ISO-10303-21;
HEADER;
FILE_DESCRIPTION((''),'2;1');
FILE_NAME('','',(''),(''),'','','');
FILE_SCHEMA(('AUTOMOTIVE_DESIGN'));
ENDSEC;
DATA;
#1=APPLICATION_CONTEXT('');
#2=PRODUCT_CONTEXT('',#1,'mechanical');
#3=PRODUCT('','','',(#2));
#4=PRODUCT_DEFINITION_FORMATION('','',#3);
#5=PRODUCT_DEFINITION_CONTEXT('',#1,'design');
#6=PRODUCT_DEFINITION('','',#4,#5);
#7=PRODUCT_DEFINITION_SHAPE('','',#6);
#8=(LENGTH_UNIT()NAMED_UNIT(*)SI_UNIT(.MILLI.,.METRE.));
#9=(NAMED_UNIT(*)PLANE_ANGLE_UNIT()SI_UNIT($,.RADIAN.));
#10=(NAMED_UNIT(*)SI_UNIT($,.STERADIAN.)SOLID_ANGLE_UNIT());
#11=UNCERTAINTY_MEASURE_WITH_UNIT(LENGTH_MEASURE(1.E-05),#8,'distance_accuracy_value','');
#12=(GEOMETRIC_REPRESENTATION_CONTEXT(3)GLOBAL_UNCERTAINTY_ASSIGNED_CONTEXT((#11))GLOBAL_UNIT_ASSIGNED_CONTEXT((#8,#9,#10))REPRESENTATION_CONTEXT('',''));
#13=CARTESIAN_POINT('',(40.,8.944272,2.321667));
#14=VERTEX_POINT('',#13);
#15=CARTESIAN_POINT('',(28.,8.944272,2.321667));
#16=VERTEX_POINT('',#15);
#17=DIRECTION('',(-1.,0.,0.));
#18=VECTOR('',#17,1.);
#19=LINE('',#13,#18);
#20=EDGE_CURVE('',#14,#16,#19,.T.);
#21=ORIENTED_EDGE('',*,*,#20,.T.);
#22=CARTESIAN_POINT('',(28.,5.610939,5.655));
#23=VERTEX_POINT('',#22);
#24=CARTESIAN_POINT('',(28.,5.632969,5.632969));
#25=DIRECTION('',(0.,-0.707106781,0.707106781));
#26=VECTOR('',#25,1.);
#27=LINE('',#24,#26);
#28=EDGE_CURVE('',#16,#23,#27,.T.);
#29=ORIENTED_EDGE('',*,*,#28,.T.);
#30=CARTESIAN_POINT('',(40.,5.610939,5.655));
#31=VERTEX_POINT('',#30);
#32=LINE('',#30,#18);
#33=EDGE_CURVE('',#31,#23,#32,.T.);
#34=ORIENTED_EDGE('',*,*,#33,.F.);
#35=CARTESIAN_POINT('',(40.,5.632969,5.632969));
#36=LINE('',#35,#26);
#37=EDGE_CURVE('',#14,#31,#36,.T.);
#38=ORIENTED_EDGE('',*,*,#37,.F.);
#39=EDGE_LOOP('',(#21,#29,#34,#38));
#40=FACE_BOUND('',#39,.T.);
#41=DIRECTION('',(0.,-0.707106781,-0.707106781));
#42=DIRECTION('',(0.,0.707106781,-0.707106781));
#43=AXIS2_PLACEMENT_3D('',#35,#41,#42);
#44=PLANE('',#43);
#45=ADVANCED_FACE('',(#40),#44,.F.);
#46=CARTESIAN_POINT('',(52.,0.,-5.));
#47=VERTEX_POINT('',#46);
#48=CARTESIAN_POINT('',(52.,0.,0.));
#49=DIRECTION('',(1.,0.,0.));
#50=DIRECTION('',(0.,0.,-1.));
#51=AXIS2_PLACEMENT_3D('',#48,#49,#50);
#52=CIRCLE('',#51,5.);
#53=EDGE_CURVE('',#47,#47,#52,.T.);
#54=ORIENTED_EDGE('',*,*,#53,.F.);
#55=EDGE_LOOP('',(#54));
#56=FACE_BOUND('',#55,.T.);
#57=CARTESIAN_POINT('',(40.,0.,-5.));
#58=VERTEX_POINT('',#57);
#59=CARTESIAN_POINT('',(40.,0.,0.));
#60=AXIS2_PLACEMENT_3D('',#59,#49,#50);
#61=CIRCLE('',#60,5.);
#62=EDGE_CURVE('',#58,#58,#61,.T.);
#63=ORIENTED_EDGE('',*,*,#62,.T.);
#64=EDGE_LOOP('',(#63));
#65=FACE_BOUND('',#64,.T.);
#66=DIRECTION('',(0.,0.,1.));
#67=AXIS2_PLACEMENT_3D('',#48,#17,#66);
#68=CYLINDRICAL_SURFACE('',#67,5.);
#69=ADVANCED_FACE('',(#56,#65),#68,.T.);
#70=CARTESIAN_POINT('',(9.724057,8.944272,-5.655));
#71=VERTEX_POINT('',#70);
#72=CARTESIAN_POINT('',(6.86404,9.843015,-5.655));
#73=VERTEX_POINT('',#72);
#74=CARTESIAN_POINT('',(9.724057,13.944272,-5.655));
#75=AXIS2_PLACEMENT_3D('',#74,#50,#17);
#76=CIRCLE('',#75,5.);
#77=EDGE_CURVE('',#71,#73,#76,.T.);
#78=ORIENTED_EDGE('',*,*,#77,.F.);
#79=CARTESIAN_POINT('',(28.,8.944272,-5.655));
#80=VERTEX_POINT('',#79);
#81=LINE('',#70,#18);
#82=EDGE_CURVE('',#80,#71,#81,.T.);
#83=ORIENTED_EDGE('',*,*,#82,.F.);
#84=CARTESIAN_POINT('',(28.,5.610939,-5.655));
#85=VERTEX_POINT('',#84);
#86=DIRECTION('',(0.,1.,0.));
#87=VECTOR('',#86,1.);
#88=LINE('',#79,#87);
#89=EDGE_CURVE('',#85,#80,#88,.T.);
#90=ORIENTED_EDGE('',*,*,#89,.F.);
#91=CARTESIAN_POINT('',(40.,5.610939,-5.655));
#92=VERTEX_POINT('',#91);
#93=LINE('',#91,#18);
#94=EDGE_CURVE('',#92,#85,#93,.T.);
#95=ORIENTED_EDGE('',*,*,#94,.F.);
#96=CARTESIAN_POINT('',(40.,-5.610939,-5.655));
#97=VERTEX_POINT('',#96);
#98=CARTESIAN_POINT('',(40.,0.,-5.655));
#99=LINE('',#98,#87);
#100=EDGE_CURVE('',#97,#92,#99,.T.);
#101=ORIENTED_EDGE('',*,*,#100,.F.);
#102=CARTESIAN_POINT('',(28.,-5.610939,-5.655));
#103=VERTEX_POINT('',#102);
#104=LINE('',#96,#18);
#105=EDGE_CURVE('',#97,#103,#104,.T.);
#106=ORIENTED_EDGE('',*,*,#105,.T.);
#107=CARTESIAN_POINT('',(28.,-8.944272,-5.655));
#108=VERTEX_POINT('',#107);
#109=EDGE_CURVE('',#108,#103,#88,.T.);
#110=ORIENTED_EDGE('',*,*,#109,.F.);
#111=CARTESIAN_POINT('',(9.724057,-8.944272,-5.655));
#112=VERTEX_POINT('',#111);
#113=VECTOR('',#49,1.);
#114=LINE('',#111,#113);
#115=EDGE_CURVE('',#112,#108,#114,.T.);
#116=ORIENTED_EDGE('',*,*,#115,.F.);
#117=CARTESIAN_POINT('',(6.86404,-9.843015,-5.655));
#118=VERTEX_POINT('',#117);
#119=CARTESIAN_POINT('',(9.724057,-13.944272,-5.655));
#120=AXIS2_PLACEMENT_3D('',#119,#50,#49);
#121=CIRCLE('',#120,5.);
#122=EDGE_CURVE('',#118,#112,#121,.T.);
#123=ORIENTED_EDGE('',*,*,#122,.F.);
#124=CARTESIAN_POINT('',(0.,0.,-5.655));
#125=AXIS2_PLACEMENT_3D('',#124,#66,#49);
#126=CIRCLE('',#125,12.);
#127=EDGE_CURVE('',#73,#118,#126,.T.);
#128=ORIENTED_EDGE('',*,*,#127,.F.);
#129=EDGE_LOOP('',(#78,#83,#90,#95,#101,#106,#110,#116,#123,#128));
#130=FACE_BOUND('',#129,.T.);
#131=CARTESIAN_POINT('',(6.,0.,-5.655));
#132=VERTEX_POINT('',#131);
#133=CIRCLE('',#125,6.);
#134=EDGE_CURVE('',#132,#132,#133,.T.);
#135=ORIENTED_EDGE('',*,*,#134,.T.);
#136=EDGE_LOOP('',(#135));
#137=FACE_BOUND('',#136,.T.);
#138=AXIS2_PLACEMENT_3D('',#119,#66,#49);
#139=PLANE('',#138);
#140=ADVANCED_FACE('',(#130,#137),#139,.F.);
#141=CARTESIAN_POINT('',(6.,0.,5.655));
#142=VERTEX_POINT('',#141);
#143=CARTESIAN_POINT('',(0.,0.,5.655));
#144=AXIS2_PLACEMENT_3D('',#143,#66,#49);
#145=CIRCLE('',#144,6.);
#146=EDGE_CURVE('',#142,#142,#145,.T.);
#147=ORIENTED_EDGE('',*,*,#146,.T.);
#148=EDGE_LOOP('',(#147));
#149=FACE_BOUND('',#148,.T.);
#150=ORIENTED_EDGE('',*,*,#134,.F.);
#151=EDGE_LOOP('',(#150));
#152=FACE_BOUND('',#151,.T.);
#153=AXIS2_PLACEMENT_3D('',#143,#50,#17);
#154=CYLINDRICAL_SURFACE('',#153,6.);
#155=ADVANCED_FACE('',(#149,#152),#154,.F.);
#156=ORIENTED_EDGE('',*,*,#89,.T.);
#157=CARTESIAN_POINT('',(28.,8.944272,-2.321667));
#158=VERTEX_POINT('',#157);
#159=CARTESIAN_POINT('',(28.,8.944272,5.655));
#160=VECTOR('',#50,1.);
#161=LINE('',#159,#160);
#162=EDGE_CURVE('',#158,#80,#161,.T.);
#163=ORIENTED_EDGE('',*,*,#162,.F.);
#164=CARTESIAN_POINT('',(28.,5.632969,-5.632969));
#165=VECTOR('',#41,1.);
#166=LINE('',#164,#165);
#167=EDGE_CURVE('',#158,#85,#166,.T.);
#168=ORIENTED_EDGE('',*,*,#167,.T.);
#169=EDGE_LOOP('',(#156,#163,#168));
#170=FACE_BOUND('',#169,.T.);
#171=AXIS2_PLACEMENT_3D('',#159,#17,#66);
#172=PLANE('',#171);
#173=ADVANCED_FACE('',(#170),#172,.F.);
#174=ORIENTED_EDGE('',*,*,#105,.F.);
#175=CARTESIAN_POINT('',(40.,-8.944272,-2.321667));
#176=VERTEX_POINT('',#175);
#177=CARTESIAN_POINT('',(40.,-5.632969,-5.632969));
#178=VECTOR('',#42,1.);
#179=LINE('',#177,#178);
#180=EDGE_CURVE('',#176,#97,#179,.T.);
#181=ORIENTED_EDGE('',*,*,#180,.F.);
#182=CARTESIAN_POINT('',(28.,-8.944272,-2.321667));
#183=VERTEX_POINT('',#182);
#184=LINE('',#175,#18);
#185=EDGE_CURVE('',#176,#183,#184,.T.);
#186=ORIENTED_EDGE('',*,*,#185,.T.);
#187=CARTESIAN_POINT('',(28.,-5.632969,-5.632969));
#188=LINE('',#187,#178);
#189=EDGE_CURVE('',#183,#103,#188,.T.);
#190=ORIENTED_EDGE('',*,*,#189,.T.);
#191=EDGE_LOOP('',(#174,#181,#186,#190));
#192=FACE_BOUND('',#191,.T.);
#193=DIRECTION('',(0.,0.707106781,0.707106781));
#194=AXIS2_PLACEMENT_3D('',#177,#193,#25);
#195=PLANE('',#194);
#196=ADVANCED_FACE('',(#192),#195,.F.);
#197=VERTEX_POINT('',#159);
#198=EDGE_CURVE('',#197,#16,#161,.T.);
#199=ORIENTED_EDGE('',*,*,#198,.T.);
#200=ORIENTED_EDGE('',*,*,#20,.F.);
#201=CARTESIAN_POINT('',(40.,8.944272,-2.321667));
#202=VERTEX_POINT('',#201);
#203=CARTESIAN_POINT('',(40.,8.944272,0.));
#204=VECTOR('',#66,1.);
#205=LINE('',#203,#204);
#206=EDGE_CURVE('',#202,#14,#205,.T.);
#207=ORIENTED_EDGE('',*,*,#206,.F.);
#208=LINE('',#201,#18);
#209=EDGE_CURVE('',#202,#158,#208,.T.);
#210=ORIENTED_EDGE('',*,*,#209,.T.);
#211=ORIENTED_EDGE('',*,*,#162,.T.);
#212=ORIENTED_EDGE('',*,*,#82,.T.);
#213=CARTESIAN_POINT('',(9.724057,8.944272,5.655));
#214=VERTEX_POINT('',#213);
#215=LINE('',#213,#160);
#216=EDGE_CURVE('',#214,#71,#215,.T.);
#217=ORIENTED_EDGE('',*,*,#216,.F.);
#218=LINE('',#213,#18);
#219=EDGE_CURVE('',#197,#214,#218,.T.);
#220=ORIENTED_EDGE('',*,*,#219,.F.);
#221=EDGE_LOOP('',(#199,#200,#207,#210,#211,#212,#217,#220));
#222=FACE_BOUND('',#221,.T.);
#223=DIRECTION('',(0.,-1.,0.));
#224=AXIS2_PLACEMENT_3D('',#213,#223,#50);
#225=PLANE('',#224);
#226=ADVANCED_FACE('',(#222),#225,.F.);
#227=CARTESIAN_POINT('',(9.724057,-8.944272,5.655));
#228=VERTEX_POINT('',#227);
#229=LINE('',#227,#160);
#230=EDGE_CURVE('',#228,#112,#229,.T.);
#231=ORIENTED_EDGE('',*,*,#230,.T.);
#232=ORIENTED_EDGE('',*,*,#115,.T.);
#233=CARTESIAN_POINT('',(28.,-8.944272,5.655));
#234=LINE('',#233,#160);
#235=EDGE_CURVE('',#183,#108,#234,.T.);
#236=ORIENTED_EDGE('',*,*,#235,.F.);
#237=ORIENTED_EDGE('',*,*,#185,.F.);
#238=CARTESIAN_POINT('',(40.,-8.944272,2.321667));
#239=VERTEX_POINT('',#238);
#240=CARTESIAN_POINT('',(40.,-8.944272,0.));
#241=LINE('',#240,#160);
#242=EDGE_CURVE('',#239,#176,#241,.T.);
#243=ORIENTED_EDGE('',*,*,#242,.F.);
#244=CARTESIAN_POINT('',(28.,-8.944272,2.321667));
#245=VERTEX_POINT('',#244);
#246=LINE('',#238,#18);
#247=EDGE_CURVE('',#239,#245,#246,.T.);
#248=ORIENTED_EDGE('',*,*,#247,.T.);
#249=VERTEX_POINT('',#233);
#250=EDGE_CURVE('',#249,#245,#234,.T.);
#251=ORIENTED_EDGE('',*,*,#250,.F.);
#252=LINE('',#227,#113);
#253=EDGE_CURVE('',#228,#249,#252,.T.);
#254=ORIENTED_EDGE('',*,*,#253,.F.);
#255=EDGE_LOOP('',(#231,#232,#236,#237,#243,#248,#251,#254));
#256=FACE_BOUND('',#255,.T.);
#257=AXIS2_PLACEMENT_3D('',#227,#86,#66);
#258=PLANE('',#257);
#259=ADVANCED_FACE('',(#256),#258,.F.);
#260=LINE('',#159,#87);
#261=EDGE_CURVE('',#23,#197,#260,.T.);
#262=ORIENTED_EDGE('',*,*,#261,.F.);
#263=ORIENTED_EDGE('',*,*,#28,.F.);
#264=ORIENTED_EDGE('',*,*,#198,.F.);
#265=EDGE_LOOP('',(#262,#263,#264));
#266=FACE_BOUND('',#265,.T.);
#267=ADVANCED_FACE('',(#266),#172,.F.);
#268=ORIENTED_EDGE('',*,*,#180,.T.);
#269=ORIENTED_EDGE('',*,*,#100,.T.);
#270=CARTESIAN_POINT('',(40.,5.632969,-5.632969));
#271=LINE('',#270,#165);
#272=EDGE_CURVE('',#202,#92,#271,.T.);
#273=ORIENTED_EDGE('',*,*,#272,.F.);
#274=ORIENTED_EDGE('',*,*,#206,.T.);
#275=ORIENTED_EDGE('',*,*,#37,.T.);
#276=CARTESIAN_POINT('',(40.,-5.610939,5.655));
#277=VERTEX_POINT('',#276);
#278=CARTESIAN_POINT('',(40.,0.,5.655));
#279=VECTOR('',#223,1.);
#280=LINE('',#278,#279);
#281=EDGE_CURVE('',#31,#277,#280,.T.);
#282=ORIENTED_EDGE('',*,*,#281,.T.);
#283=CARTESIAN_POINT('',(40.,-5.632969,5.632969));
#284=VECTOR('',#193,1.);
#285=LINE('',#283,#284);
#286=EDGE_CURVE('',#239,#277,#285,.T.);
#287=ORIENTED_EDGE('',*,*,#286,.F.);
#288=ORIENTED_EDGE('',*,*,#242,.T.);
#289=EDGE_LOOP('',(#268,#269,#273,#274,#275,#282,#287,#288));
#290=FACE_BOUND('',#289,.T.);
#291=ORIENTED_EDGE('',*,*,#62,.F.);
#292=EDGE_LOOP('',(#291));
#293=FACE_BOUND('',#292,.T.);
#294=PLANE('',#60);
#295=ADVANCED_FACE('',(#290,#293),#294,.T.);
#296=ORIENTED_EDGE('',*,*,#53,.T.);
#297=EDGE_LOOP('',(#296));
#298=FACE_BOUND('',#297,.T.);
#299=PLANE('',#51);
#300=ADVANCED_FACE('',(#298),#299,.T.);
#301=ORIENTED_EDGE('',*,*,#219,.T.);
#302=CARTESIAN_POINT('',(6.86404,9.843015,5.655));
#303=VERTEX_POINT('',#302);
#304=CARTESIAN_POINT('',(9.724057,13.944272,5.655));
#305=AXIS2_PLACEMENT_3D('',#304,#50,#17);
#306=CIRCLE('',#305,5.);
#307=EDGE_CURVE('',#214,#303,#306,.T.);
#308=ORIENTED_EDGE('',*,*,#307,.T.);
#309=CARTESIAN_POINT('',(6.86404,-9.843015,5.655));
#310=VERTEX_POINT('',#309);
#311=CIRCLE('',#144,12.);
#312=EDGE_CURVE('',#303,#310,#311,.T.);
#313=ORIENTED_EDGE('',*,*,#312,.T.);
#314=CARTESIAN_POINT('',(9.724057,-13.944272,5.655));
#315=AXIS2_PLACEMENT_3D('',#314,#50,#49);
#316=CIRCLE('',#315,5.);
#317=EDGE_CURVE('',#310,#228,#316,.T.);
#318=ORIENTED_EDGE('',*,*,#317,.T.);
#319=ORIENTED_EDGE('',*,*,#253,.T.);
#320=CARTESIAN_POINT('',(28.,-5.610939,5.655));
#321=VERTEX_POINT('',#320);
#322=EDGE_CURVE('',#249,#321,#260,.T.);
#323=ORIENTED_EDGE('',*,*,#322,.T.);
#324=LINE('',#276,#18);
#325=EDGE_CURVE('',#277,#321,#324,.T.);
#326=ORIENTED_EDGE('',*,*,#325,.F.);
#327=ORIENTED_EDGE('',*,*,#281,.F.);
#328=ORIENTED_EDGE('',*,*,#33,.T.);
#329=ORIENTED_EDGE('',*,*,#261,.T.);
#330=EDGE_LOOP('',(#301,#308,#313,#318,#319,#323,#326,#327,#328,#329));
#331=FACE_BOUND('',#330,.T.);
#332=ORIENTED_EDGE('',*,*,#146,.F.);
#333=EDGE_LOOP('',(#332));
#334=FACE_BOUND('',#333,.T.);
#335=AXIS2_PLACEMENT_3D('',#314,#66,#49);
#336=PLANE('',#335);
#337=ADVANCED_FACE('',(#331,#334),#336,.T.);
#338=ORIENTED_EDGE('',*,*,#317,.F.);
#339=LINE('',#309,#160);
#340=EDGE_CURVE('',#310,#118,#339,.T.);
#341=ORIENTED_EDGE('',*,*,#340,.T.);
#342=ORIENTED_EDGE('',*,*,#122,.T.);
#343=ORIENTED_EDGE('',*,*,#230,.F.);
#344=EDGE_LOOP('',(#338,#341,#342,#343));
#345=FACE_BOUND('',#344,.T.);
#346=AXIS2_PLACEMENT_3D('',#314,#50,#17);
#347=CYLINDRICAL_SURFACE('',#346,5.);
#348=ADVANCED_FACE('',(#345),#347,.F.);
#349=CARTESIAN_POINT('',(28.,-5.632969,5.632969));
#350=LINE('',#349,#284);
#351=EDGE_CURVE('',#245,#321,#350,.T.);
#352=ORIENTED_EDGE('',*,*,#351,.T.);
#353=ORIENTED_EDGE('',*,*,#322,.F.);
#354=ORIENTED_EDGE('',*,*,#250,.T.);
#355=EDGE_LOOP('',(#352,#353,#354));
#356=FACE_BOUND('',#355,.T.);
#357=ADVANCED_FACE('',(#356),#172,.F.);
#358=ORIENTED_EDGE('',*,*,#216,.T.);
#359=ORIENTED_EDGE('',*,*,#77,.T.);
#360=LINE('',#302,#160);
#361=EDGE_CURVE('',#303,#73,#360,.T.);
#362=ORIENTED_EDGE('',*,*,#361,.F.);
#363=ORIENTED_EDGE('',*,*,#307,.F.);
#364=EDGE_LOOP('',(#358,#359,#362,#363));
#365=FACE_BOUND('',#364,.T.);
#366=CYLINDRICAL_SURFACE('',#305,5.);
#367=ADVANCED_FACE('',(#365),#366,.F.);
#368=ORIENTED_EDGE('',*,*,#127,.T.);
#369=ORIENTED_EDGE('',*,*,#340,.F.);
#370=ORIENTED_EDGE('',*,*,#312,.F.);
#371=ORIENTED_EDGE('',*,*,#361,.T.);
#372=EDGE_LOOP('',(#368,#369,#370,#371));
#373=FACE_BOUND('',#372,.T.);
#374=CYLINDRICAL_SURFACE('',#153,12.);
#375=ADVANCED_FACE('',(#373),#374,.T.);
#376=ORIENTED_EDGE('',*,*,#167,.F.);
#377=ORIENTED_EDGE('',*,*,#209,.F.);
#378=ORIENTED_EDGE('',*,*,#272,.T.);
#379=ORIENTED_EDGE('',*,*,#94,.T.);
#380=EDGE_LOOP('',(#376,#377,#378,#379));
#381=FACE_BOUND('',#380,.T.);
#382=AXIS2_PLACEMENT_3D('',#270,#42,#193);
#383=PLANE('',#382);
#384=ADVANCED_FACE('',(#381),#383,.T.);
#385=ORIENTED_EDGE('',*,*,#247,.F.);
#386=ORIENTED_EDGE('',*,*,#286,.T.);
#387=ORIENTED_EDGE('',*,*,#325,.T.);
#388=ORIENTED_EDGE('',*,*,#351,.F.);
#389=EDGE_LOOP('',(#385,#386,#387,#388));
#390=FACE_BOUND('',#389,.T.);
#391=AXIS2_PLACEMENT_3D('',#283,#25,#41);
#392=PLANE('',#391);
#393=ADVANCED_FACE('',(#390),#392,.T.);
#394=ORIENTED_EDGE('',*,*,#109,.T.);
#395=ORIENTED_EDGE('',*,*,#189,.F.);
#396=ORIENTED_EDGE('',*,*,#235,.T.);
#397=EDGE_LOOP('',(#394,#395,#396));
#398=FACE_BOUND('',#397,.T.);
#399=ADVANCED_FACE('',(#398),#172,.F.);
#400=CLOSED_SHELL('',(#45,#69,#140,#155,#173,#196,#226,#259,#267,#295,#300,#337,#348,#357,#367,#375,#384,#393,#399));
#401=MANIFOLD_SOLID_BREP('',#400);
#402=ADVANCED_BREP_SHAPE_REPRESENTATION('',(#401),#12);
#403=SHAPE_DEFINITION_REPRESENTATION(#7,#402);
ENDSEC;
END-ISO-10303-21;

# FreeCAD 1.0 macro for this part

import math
import FreeCAD as App
import Part
import Sketcher
from FreeCAD import Vector
Q = App.Units.Quantity

doc = App.newDocument("Part")
params = doc.addObject("Spreadsheet::Sheet", "Params")
for row, (alias, value) in enumerate([
    ("sketch1_diameter", "12 mm"),
    ("sketch1_radius", "5 mm"),
    ("sketch1_radius2", "12 mm"),
    ("pad1_length", "11.31 mm"),
    ("pad2_length", "12 mm"),
    ("sketch3_diameter", "10 mm"),
    ("pad3_length", "12 mm"),
], start=1):
    params.set(f"A{row}", alias)
    params.set(f"B{row}", "=" + value)
    params.setAlias(f"B{row}", alias)

body = doc.addObject("PartDesign::Body", "Body")

# Sketch on XY plane
sketch1 = doc.addObject("Sketcher::SketchObject", "Sketch")
body.addObject(sketch1)
sketch1.AttachmentSupport = (doc.XY_Plane, [""])
sketch1.MapMode = "FlatFace"
sketch1.addGeometry([
    Part.LineSegment(Vector(28, 8.944272, 0), Vector(9.724057, 8.944272, 0)),  # 0
    Part.ArcOfCircle(Part.Circle(Vector(9.724057, 13.944272, 0), Vector(0, 0, 1), 5), math.radians(-124.890043), math.radians(-90)),  # 1
    Part.ArcOfCircle(Part.Circle(Vector(0, 0, 0), Vector(0, 0, 1), 12), math.radians(55.109957), math.radians(304.890043)),  # 2
    Part.ArcOfCircle(Part.Circle(Vector(9.724057, -13.944272, 0), Vector(0, 0, 1), 5), math.radians(90), math.radians(124.890043)),  # 3
    Part.LineSegment(Vector(9.724057, -8.944272, 0), Vector(28, -8.944272, 0)),  # 4
    Part.LineSegment(Vector(28, -8.944272, 0), Vector(28, 8.944272, 0)),  # 5
    Part.Circle(Vector(0, 0, 0), Vector(0, 0, 1), 6),  # 6
], False)
sketch1.addConstraint([
    Sketcher.Constraint("Tangent", 0, 2, 1, 2),
    Sketcher.Constraint("Tangent", 1, 1, 2, 1),
    Sketcher.Constraint("Tangent", 2, 2, 3, 2),
    Sketcher.Constraint("Tangent", 3, 1, 4, 1),
    Sketcher.Constraint("Coincident", 4, 2, 5, 1),
    Sketcher.Constraint("Coincident", 5, 2, 0, 1),
    Sketcher.Constraint("Horizontal", 0),
    Sketcher.Constraint("Horizontal", 4),
    Sketcher.Constraint("Vertical", 5),
    Sketcher.Constraint("Coincident", 2, 3, -1, 1),
    Sketcher.Constraint("Coincident", 6, 3, -1, 1),
    Sketcher.Constraint("Equal", 1, 3),
    Sketcher.Constraint("Vertical", 1, 3, 3, 3),
    Sketcher.Constraint("Diameter", 6, Q("12 mm")),
    Sketcher.Constraint("Radius", 1, Q("5 mm")),
    Sketcher.Constraint("Radius", 2, Q("12 mm")),
    Sketcher.Constraint("DistanceX", -1, 1, 4, 2, Q("28 mm")),
    Sketcher.Constraint("DistanceX", 0, 2, 0, 1, Q("18.275943 mm")),
])
sketch1.setExpression("Constraints[13]", "Params.sketch1_diameter")
sketch1.setExpression("Constraints[14]", "Params.sketch1_radius")
sketch1.setExpression("Constraints[15]", "Params.sketch1_radius2")
pad1 = doc.addObject("PartDesign::Pad", "Pad")
body.addObject(pad1)
pad1.Profile = sketch1
pad1.setExpression("Length", "Params.pad1_length")
pad1.Midplane = True

# Sketch on YZ plane
sketch2 = doc.addObject("Sketcher::SketchObject", "Sketch001")
body.addObject(sketch2)
sketch2.AttachmentSupport = (doc.YZ_Plane, [""])
sketch2.MapMode = "FlatFace"
sketch2.AttachmentOffset = App.Placement(Vector(0, 0, 28), App.Rotation())
sketch2.addGeometry([
    Part.LineSegment(Vector(8.944272, -2.321667, 0), Vector(8.944272, 2.321667, 0)),  # 0
    Part.LineSegment(Vector(8.944272, 2.321667, 0), Vector(5.610939, 5.655, 0)),  # 1
    Part.LineSegment(Vector(5.610939, 5.655, 0), Vector(-5.610939, 5.655, 0)),  # 2
    Part.LineSegment(Vector(-5.610939, 5.655, 0), Vector(-8.944272, 2.321667, 0)),  # 3
    Part.LineSegment(Vector(-8.944272, 2.321667, 0), Vector(-8.944272, -2.321667, 0)),  # 4
    Part.LineSegment(Vector(-8.944272, -2.321667, 0), Vector(-5.610939, -5.655, 0)),  # 5
    Part.LineSegment(Vector(-5.610939, -5.655, 0), Vector(5.610939, -5.655, 0)),  # 6
    Part.LineSegment(Vector(5.610939, -5.655, 0), Vector(8.944272, -2.321667, 0)),  # 7
], False)
sketch2.addConstraint([
    Sketcher.Constraint("Coincident", 0, 2, 1, 1),
    Sketcher.Constraint("Coincident", 1, 2, 2, 1),
    Sketcher.Constraint("Coincident", 2, 2, 3, 1),
    Sketcher.Constraint("Coincident", 3, 2, 4, 1),
    Sketcher.Constraint("Coincident", 4, 2, 5, 1),
    Sketcher.Constraint("Coincident", 5, 2, 6, 1),
    Sketcher.Constraint("Coincident", 6, 2, 7, 1),
    Sketcher.Constraint("Coincident", 7, 2, 0, 1),
    Sketcher.Constraint("Vertical", 0),
    Sketcher.Constraint("Horizontal", 2),
    Sketcher.Constraint("Vertical", 4),
    Sketcher.Constraint("Horizontal", 6),
    Sketcher.Constraint("Symmetric", 0, 2, 4, 2, -1, 1),
    Sketcher.Constraint("Symmetric", 1, 2, 5, 2, -1, 1),
    Sketcher.Constraint("Perpendicular", 1, 3),
    Sketcher.Constraint("Perpendicular", 5, 7),
    Sketcher.Constraint("Horizontal", 0, 2, 3, 2),
    Sketcher.Constraint("Horizontal", 4, 2, 7, 2),
    Sketcher.Constraint("Vertical", 2, 2, 5, 2),
    Sketcher.Constraint("DistanceY", 5, 2, 2, 2, Q("11.31 mm")),
    Sketcher.Constraint("DistanceX", 2, 2, 2, 1, Q("11.221877 mm")),
    Sketcher.Constraint("DistanceY", 0, 1, 0, 2, Q("4.643333 mm")),
])
pad2 = doc.addObject("PartDesign::Pad", "Pad001")
body.addObject(pad2)
pad2.Profile = sketch2
pad2.setExpression("Length", "Params.pad2_length")

# Sketch on YZ plane
sketch3 = doc.addObject("Sketcher::SketchObject", "Sketch002")
body.addObject(sketch3)
sketch3.AttachmentSupport = (doc.YZ_Plane, [""])
sketch3.MapMode = "FlatFace"
sketch3.AttachmentOffset = App.Placement(Vector(0, 0, 40), App.Rotation())
sketch3.addGeometry(Part.Circle(Vector(0, 0, 0), Vector(0, 0, 1), 5), False)
sketch3.addConstraint([
    Sketcher.Constraint("Coincident", 0, 3, -1, 1),
    Sketcher.Constraint("Diameter", 0, Q("10 mm")),
])
sketch3.setExpression("Constraints[1]", "Params.sketch3_diameter")
pad3 = doc.addObject("PartDesign::Pad", "Pad002")
body.addObject(pad3)
pad3.Profile = sketch3
pad3.setExpression("Length", "Params.pad3_length")

doc.recompute()
